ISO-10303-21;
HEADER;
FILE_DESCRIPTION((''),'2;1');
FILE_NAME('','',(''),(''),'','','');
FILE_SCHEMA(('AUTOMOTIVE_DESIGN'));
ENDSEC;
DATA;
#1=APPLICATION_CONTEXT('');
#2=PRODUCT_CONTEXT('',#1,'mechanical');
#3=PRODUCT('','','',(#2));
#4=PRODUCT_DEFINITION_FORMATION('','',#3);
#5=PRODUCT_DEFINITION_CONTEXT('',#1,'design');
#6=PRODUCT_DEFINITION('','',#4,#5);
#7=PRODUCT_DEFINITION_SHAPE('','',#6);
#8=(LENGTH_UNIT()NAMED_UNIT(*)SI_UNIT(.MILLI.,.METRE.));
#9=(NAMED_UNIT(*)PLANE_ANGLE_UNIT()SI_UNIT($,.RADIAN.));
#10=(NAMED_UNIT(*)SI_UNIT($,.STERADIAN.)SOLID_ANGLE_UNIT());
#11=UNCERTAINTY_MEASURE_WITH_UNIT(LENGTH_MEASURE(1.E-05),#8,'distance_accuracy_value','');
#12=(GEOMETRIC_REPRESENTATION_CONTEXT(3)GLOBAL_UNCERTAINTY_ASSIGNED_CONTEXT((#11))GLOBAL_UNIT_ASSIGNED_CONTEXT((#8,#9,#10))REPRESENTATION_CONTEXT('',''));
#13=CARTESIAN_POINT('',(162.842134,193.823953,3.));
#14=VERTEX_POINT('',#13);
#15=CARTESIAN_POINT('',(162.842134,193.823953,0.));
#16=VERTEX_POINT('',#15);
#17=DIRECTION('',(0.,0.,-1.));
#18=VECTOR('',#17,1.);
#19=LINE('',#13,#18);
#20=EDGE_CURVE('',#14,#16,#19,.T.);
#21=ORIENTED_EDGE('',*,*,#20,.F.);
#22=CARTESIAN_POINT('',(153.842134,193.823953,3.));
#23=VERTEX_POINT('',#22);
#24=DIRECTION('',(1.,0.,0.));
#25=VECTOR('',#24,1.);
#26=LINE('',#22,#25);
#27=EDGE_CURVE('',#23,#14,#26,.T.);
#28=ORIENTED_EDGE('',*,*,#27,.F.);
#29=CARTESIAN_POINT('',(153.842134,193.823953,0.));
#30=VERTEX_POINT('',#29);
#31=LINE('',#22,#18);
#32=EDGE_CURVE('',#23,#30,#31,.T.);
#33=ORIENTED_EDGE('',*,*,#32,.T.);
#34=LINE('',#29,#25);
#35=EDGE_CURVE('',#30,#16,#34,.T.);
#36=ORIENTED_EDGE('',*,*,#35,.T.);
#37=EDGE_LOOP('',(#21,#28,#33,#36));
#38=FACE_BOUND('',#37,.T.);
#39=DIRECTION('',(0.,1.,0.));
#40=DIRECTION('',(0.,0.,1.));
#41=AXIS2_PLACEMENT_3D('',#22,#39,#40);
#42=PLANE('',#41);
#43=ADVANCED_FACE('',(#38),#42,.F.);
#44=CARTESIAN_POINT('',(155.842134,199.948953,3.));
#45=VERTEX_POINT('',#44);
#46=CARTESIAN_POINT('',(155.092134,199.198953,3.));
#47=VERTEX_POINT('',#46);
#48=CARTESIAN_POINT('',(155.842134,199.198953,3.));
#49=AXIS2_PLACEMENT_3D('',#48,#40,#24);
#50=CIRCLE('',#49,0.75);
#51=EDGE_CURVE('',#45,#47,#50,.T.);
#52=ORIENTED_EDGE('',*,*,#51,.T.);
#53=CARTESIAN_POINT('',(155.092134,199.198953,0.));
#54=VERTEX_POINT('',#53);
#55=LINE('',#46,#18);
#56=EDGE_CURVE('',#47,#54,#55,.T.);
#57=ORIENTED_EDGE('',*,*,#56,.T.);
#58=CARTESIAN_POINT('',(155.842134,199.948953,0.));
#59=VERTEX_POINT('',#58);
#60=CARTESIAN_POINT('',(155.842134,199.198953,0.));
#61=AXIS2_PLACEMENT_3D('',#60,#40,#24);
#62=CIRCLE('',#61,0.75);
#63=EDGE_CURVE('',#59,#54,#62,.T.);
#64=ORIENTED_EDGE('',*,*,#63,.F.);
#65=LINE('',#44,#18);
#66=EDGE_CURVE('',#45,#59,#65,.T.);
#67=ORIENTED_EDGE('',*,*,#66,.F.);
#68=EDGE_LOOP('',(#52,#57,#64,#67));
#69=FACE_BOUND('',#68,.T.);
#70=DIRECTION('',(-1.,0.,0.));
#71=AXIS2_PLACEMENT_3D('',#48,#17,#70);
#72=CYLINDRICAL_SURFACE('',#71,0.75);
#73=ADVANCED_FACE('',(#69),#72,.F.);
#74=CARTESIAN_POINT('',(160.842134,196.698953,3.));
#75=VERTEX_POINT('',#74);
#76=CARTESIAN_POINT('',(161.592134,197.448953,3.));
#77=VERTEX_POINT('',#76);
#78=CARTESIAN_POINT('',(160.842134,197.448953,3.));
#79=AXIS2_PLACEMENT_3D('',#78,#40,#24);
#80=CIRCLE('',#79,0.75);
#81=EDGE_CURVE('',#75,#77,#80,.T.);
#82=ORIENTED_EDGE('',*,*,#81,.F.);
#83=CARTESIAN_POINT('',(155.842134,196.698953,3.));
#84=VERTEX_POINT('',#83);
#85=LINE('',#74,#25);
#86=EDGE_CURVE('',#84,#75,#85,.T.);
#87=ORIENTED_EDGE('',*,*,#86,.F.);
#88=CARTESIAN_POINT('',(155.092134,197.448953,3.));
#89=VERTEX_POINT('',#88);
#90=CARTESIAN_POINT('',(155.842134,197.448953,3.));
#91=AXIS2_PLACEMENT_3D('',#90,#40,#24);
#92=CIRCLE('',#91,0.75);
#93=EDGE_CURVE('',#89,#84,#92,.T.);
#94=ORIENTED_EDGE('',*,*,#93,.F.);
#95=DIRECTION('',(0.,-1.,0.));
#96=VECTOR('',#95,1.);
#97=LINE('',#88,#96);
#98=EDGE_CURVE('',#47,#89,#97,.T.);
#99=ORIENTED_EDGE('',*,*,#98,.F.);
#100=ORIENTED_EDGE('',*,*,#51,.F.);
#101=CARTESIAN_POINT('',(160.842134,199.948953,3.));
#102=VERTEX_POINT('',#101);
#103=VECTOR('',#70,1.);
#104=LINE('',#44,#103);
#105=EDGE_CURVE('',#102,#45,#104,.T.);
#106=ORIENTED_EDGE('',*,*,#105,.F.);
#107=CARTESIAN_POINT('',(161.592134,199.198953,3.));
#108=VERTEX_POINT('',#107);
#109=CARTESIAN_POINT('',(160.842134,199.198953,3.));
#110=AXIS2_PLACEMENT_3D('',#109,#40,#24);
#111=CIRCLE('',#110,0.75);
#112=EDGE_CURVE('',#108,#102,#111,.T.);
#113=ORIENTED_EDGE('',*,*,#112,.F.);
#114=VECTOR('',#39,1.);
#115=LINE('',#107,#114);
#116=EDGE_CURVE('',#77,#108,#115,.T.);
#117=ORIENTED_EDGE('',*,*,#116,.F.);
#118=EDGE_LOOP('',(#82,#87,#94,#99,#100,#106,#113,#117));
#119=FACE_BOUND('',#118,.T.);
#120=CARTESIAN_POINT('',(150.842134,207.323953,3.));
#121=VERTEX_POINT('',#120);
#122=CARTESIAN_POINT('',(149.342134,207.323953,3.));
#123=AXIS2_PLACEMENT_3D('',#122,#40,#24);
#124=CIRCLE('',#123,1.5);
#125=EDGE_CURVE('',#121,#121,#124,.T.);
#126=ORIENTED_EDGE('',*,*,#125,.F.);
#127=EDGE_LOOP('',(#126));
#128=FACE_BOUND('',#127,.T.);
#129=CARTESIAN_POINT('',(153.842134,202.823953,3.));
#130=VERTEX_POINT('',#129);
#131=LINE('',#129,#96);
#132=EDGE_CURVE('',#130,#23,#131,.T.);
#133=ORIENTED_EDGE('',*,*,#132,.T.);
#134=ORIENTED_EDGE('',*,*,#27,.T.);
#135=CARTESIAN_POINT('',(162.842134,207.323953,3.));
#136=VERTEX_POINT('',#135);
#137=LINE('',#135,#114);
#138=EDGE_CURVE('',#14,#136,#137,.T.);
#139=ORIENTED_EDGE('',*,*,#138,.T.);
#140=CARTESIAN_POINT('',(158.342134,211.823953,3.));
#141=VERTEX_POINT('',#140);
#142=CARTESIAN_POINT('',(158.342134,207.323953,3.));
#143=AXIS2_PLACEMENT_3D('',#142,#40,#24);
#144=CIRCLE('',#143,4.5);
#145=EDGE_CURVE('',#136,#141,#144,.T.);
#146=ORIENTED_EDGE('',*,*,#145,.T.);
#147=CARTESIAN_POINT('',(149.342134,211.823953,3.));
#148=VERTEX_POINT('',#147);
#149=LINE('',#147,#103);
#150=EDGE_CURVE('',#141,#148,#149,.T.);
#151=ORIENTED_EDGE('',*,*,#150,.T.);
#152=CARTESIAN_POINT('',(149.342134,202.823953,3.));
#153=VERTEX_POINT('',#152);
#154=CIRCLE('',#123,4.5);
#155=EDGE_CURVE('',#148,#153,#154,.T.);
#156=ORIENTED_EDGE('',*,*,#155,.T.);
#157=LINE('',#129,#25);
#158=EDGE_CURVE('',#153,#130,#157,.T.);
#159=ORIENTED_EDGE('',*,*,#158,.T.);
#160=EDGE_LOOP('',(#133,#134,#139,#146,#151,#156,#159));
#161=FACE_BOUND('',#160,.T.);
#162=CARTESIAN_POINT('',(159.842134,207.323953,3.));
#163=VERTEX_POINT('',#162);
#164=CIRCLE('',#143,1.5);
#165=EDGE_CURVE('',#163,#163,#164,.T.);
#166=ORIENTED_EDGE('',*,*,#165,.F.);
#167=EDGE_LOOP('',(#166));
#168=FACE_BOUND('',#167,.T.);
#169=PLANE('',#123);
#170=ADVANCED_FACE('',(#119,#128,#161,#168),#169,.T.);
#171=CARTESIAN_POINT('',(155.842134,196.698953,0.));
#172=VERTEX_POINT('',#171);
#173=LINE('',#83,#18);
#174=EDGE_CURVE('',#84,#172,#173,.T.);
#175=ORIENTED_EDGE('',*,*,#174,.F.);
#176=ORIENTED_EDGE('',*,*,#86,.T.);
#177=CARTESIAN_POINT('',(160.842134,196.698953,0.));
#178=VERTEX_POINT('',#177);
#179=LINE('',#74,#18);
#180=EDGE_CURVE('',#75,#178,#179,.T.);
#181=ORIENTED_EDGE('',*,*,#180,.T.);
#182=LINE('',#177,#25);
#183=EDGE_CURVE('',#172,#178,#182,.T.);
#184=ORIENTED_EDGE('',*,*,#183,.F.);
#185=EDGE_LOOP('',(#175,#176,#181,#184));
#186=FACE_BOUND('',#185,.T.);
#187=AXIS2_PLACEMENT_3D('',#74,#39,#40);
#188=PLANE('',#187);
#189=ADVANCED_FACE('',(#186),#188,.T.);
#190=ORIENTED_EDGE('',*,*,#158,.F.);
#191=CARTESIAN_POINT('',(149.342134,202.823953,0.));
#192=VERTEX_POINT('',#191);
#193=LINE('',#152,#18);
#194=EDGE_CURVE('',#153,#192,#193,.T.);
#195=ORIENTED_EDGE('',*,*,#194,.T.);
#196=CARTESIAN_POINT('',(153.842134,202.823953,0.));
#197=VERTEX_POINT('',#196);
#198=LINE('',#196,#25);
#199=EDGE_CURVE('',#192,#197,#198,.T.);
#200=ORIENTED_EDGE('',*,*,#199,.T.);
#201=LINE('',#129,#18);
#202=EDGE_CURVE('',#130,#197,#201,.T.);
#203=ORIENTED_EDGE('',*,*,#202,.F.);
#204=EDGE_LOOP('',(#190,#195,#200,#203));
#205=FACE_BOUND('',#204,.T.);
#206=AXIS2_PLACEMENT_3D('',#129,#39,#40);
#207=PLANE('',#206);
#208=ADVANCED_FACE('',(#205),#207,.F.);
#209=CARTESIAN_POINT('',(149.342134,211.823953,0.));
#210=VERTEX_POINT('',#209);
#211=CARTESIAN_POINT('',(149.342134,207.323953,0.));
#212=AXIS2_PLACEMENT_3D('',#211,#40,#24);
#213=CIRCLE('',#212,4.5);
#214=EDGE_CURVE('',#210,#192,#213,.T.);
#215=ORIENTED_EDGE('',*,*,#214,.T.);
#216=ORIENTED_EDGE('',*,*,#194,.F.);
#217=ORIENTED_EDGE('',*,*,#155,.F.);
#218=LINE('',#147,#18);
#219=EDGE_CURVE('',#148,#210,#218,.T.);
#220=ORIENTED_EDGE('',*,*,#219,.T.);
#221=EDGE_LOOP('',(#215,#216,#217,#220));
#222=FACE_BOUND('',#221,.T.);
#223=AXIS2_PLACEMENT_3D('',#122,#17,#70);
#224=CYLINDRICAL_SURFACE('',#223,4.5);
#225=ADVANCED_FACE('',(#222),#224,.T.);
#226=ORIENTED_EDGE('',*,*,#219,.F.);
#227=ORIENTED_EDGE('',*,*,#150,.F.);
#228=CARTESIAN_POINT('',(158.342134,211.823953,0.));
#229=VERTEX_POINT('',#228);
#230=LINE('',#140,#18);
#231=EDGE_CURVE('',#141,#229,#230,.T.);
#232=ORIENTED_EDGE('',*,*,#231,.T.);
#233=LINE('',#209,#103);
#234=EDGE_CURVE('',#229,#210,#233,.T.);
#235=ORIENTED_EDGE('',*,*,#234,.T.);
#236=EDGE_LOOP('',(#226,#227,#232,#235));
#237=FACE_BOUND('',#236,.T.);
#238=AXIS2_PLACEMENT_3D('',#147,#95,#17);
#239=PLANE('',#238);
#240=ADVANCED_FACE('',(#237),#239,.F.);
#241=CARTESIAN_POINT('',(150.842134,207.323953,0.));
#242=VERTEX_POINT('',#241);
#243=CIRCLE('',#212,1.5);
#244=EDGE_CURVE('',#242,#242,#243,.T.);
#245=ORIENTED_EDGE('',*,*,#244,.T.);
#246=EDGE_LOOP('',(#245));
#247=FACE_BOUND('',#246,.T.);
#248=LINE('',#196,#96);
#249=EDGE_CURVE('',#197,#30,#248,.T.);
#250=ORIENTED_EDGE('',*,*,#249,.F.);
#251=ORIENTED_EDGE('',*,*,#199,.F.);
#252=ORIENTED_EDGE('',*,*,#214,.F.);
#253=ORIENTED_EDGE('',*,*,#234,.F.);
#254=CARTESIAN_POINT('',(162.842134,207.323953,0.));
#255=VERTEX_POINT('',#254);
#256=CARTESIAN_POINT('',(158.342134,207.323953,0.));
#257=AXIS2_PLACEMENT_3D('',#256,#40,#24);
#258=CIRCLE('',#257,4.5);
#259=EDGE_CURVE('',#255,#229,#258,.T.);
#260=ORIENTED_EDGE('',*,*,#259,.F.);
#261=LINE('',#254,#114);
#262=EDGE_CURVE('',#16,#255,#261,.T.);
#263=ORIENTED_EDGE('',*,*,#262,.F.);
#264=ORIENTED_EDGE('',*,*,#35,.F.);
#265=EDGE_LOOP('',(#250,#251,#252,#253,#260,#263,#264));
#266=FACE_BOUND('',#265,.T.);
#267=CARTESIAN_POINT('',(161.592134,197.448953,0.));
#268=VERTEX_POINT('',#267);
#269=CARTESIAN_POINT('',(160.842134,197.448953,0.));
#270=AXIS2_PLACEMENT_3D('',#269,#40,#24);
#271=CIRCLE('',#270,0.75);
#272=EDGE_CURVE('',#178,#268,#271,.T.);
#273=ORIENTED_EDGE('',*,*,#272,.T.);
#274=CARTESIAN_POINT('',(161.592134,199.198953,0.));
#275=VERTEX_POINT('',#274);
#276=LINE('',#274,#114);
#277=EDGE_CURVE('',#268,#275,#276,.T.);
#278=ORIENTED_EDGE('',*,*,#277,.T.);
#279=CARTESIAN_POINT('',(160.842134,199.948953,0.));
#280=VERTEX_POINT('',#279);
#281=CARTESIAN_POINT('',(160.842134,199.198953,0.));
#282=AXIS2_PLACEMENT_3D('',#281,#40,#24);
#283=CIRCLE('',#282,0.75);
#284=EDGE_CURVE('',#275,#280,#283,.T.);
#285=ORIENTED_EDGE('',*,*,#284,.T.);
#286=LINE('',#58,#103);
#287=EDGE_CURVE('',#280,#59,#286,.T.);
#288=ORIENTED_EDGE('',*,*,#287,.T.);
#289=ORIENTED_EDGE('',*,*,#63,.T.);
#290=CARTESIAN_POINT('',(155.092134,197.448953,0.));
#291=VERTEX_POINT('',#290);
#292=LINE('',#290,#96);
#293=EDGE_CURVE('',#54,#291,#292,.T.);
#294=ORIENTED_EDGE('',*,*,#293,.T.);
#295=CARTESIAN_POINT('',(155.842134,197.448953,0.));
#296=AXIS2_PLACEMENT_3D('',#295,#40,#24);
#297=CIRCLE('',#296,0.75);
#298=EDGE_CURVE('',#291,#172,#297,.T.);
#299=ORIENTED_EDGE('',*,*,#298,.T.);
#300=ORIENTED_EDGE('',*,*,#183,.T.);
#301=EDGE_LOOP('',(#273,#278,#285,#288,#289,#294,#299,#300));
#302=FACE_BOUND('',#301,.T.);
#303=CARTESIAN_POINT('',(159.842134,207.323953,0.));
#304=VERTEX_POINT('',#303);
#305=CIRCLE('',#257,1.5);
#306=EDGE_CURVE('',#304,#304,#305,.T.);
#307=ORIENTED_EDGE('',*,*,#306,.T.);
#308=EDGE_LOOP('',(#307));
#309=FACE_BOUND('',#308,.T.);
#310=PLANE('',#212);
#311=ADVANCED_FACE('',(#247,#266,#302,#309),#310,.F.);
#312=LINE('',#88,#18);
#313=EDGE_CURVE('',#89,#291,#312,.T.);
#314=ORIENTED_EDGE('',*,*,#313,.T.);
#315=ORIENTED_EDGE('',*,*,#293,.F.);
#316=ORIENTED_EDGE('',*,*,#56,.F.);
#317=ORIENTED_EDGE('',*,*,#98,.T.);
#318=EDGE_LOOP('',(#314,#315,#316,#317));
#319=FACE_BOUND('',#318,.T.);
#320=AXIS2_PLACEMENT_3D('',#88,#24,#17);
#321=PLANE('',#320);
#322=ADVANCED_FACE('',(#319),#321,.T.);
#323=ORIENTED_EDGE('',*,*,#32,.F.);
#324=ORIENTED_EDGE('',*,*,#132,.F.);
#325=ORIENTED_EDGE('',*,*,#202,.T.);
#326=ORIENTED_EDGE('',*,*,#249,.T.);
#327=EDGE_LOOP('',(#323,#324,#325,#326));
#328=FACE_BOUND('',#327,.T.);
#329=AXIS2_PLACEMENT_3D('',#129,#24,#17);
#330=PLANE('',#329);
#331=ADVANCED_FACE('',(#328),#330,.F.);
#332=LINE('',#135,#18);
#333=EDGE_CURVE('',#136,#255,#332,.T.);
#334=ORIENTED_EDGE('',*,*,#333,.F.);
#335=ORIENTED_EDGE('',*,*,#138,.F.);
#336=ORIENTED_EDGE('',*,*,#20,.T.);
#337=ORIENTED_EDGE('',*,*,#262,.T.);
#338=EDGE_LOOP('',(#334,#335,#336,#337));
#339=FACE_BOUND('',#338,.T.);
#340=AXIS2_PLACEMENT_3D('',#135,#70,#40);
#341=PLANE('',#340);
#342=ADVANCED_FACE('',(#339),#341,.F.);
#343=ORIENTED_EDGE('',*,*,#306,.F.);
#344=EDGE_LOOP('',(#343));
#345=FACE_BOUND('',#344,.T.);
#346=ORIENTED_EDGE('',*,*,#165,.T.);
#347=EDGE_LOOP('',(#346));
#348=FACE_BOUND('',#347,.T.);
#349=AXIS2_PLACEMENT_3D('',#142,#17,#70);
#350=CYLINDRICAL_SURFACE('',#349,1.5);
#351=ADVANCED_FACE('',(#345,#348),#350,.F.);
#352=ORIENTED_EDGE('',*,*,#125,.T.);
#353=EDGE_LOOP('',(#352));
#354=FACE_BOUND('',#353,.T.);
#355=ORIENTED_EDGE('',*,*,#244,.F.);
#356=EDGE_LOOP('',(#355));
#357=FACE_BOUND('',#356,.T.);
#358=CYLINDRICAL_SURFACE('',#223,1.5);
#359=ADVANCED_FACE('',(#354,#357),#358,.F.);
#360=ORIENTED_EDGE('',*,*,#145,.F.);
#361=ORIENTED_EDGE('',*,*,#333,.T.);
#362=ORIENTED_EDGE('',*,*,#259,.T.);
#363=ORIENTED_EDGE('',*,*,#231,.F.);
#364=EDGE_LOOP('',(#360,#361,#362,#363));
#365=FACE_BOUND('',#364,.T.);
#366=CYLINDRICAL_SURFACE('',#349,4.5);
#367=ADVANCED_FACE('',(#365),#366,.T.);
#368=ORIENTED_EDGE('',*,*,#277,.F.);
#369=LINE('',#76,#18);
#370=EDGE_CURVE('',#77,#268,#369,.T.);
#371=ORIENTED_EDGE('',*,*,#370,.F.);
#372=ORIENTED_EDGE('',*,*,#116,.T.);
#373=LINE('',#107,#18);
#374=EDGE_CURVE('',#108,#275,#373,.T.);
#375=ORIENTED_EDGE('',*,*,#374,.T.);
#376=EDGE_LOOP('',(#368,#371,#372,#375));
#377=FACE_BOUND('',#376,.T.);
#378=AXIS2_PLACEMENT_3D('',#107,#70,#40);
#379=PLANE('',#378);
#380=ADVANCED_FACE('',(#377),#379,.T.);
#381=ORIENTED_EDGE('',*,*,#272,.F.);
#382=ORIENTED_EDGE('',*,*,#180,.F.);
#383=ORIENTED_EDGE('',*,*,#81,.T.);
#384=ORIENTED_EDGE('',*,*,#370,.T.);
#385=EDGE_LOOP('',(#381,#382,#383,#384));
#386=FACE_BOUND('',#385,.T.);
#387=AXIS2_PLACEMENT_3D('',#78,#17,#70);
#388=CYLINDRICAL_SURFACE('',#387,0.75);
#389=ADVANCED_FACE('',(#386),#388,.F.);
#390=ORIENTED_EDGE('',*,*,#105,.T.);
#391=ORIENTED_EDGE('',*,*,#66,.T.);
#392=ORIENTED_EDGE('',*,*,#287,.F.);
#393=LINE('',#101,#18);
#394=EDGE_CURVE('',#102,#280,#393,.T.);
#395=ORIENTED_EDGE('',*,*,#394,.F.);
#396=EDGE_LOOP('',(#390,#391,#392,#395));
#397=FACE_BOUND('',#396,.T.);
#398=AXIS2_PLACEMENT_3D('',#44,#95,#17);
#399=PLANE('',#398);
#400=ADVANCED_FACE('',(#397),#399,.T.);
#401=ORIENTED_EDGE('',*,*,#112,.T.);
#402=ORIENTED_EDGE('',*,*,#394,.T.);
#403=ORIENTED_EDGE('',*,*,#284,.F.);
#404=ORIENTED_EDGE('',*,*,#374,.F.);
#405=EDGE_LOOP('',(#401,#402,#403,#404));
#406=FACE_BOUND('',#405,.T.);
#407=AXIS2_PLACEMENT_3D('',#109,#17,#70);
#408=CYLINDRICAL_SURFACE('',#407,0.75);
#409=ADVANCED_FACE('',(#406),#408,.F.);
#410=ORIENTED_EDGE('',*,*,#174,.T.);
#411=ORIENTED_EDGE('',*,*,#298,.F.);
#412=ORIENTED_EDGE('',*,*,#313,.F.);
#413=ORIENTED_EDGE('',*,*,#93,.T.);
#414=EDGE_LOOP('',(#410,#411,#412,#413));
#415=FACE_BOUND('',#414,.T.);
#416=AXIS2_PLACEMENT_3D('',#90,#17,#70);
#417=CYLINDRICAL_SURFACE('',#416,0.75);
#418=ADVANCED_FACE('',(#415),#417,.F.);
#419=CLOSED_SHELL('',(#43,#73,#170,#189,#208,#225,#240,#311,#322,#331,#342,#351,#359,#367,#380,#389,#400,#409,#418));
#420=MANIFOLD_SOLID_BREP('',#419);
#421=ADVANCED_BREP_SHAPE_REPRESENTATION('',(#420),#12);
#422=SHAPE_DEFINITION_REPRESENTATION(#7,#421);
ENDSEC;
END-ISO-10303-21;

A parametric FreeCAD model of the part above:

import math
import FreeCAD as App
import Part
import Sketcher

doc = App.newDocument("Part")
body = doc.addObject("PartDesign::Body", "Body")

sketch1 = doc.addObject("Sketcher::SketchObject", "Sketch")
body.addObject(sketch1)
sketch1.AttachmentSupport = (doc.XY_Plane, [""])
sketch1.MapMode = "FlatFace"
sketch1.addGeometry(Part.LineSegment(App.Vector(158.3, 211.8, 0), App.Vector(149.3, 211.8, 0)), False)
sketch1.addGeometry(Part.ArcOfCircle(Part.Circle(App.Vector(149.3, 207.3, 0), App.Vector(0, 0, 1), 4.5), math.radians(90), math.radians(270)), False)
sketch1.addGeometry(Part.LineSegment(App.Vector(149.3, 202.8, 0), App.Vector(153.8, 202.8, 0)), False)
sketch1.addGeometry(Part.LineSegment(App.Vector(153.8, 202.8, 0), App.Vector(153.8, 193.8, 0)), False)
sketch1.addGeometry(Part.LineSegment(App.Vector(153.8, 193.8, 0), App.Vector(162.8, 193.8, 0)), False)
sketch1.addGeometry(Part.LineSegment(App.Vector(162.8, 193.8, 0), App.Vector(162.8, 207.3, 0)), False)
sketch1.addGeometry(Part.ArcOfCircle(Part.Circle(App.Vector(158.3, 207.3, 0), App.Vector(0, 0, 1), 4.5), math.radians(0), math.radians(90)), False)
sketch1.addGeometry(Part.LineSegment(App.Vector(160.8, 196.7, 0), App.Vector(155.8, 196.7, 0)), False)
sketch1.addGeometry(Part.ArcOfCircle(Part.Circle(App.Vector(155.8, 197.4, 0), App.Vector(0, 0, 1), 0.8), math.radians(180), math.radians(270)), False)
sketch1.addGeometry(Part.LineSegment(App.Vector(155.1, 197.4, 0), App.Vector(155.1, 199.2, 0)), False)
sketch1.addGeometry(Part.ArcOfCircle(Part.Circle(App.Vector(155.8, 199.2, 0), App.Vector(0, 0, 1), 0.8), math.radians(90), math.radians(180)), False)
sketch1.addGeometry(Part.LineSegment(App.Vector(155.8, 199.9, 0), App.Vector(160.8, 199.9, 0)), False)
sketch1.addGeometry(Part.ArcOfCircle(Part.Circle(App.Vector(160.8, 199.2, 0), App.Vector(0, 0, 1), 0.8), math.radians(0), math.radians(90)), False)
sketch1.addGeometry(Part.LineSegment(App.Vector(161.6, 199.2, 0), App.Vector(161.6, 197.4, 0)), False)
sketch1.addGeometry(Part.ArcOfCircle(Part.Circle(App.Vector(160.8, 197.4, 0), App.Vector(0, 0, 1), 0.8), math.radians(-90), math.radians(0)), False)
sketch1.addGeometry(Part.Circle(App.Vector(158.3, 207.3, 0), App.Vector(0, 0, 1), 1.5), False)
sketch1.addGeometry(Part.Circle(App.Vector(149.3, 207.3, 0), App.Vector(0, 0, 1), 1.5), False)
sketch1.addConstraint(Sketcher.Constraint("Tangent", 0, 2, 1, 1))
sketch1.addConstraint(Sketcher.Constraint("Tangent", 1, 2, 2, 1))
sketch1.addConstraint(Sketcher.Constraint("Coincident", 2, 2, 3, 1))
sketch1.addConstraint(Sketcher.Constraint("Coincident", 3, 2, 4, 1))
sketch1.addConstraint(Sketcher.Constraint("Coincident", 4, 2, 5, 1))
sketch1.addConstraint(Sketcher.Constraint("Tangent", 5, 2, 6, 1))
sketch1.addConstraint(Sketcher.Constraint("Tangent", 6, 2, 0, 1))
sketch1.addConstraint(Sketcher.Constraint("Tangent", 7, 2, 8, 2))
sketch1.addConstraint(Sketcher.Constraint("Tangent", 8, 1, 9, 1))
sketch1.addConstraint(Sketcher.Constraint("Tangent", 9, 2, 10, 2))
sketch1.addConstraint(Sketcher.Constraint("Tangent", 10, 1, 11, 1))
sketch1.addConstraint(Sketcher.Constraint("Tangent", 11, 2, 12, 2))
sketch1.addConstraint(Sketcher.Constraint("Tangent", 12, 1, 13, 1))
sketch1.addConstraint(Sketcher.Constraint("Tangent", 13, 2, 14, 2))
sketch1.addConstraint(Sketcher.Constraint("Tangent", 14, 1, 7, 1))
sketch1.addConstraint(Sketcher.Constraint("Horizontal", 0))
sketch1.addConstraint(Sketcher.Constraint("Horizontal", 2))
sketch1.addConstraint(Sketcher.Constraint("Vertical", 3))
sketch1.addConstraint(Sketcher.Constraint("Horizontal", 4))
sketch1.addConstraint(Sketcher.Constraint("Vertical", 5))
sketch1.addConstraint(Sketcher.Constraint("Horizontal", 7))
sketch1.addConstraint(Sketcher.Constraint("Vertical", 9))
sketch1.addConstraint(Sketcher.Constraint("Horizontal", 11))
sketch1.addConstraint(Sketcher.Constraint("Vertical", 13))
sketch1.addConstraint(Sketcher.Constraint("Coincident", 15, 3, 6, 3))
sketch1.addConstraint(Sketcher.Constraint("Coincident", 16, 3, 1, 3))
sketch1.addConstraint(Sketcher.Constraint("Equal", 1, 6))
sketch1.addConstraint(Sketcher.Constraint("Equal", 8, 10))
sketch1.addConstraint(Sketcher.Constraint("Equal", 10, 12))
sketch1.addConstraint(Sketcher.Constraint("Equal", 12, 14))
sketch1.addConstraint(Sketcher.Constraint("Equal", 15, 16))
sketch1.addConstraint(Sketcher.Constraint("Equal", 0, 4))
sketch1.addConstraint(Sketcher.Constraint("Equal", 4, 3))
sketch1.addConstraint(Sketcher.Constraint("Diameter", 15, 3.0))
sketch1.addConstraint(Sketcher.Constraint("Radius", 1, 4.5))
sketch1.addConstraint(Sketcher.Constraint("DistanceX", 0, 2, 0, 1, 9.0))
sketch1.addConstraint(Sketcher.Constraint("DistanceX", 7, 2, 7, 1, 5.0))
sketch1.addConstraint(Sketcher.Constraint("Radius", 8, 0.75))
sketch1.addConstraint(Sketcher.Constraint("DistanceX", 2, 2, 10, 3, 2.0))
sketch1.addConstraint(Sketcher.Constraint("DistanceY", 9, 1, 9, 2, 1.75))
sketch1.addConstraint(Sketcher.Constraint("DistanceY", 8, 3, 6, 3, 9.875))
sketch1.addConstraint(Sketcher.Constraint("DistanceX", -1, 1, 1, 3, 149.342134))
sketch1.addConstraint(Sketcher.Constraint("DistanceY", -1, 1, 1, 3, 207.323953))
pad1 = doc.addObject("PartDesign::Pad", "Pad")
body.addObject(pad1)
pad1.Profile = sketch1
pad1.Length = 3

doc.recompute()
